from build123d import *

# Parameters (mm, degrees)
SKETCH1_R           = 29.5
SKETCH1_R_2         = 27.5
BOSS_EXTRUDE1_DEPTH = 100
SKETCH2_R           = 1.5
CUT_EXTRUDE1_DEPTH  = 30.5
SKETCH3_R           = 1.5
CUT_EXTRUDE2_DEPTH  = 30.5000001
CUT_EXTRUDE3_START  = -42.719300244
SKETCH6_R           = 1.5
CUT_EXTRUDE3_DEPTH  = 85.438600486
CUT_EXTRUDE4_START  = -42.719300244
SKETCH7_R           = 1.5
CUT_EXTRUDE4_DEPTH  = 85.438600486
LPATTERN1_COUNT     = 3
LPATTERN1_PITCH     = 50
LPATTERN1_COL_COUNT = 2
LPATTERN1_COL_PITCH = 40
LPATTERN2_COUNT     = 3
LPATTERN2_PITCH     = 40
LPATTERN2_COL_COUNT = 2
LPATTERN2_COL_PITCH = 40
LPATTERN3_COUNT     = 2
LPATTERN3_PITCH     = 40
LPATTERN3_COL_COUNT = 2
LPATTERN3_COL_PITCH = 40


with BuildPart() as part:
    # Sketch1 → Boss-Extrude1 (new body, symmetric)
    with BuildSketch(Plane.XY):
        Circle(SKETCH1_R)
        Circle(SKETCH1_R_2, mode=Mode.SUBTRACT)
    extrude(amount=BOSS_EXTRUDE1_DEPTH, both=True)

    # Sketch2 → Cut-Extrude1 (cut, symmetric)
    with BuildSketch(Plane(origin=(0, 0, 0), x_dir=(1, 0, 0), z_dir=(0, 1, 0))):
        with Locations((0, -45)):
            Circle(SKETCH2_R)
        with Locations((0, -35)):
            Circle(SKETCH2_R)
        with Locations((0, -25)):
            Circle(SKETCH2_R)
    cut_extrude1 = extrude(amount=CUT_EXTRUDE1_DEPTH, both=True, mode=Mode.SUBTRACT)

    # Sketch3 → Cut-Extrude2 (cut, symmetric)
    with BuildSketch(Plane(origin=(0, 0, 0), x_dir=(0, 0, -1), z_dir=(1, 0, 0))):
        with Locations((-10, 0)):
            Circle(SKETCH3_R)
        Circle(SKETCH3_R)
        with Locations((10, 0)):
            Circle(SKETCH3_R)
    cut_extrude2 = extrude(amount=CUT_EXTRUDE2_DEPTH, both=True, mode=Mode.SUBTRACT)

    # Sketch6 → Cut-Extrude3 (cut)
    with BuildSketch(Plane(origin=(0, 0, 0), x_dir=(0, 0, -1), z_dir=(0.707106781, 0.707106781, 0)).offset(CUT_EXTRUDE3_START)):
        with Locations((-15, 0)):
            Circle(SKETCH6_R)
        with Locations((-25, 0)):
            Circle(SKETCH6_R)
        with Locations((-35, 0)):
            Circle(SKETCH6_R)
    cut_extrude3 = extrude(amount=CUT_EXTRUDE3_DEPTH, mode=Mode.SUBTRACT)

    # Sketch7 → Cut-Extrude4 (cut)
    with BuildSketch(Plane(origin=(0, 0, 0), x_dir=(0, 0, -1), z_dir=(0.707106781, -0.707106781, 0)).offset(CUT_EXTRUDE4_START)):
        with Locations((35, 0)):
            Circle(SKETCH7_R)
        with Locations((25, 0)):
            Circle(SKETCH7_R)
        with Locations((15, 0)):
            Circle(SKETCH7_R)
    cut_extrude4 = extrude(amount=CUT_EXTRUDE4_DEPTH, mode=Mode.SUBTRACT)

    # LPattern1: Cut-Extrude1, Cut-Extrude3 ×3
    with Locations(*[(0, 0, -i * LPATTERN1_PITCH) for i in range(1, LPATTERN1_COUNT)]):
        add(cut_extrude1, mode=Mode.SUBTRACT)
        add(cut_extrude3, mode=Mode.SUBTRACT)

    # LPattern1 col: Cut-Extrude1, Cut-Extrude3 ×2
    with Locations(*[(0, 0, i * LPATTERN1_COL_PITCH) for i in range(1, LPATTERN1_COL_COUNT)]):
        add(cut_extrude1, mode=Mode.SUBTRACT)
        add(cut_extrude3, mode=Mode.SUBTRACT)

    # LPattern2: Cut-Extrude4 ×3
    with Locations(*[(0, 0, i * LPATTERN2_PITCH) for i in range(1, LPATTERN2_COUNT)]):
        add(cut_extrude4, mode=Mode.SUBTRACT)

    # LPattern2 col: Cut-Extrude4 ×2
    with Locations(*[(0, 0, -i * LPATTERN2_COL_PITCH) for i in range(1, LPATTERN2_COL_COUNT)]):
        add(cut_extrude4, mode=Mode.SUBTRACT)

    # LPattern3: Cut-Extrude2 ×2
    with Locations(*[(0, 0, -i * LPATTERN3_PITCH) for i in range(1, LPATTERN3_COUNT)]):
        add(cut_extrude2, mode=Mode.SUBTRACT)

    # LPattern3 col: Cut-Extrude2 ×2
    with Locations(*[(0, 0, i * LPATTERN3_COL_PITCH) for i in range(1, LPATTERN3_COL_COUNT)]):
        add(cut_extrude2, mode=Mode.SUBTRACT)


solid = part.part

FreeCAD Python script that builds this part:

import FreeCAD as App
import Part
import Sketcher

V = App.Vector
Q = App.Units.Quantity

doc = App.newDocument("Part")
body = doc.addObject("PartDesign::Body", "Body")

# Sketch on XY plane
sketch1 = body.newObject("Sketcher::SketchObject", "Sketch")
sketch1.AttachmentSupport = (doc.getObject("XY_Plane"), [""])
sketch1.MapMode = "FlatFace"
sketch1.addGeometry([
    Part.Circle(V(0, 0, 0), V(0, 0, 1), 30),
    Part.Circle(V(0, 0, 0), V(0, 0, 1), 28),
], False)
sketch1.addConstraint([
    Sketcher.Constraint("Coincident", 0, 3, -1, 1),
    Sketcher.Constraint("Coincident", 1, 3, -1, 1),
    Sketcher.Constraint("Diameter", 0, Q("59 mm")),
    Sketcher.Constraint("Diameter", 1, Q("55 mm")),
])
pad1 = body.newObject("PartDesign::Pad", "Pad")
pad1.Profile = sketch1
pad1.Length = 200
pad1.Midplane = True

# Sketch on XZ plane
sketch2 = body.newObject("Sketcher::SketchObject", "Sketch001")
sketch2.AttachmentSupport = (doc.getObject("XZ_Plane"), [""])
sketch2.MapMode = "FlatFace"
sketch2.addGeometry([
    Part.Circle(V(0, 45, 0), V(0, 0, 1), 1.5),
    Part.Circle(V(0, 35, 0), V(0, 0, 1), 1.5),
    Part.Circle(V(0, 25, 0), V(0, 0, 1), 1.5),
], False)
sketch2.addConstraint([
    Sketcher.Constraint("Equal", 0, 1),
    Sketcher.Constraint("Equal", 1, 2),
    Sketcher.Constraint("PointOnObject", 0, 3, -2),
    Sketcher.Constraint("PointOnObject", 1, 3, -2),
    Sketcher.Constraint("PointOnObject", 2, 3, -2),
    Sketcher.Constraint("Diameter", 0, Q("3 mm")),
    Sketcher.Constraint("DistanceY", -1, 1, 0, 3, Q("45 mm")),
    Sketcher.Constraint("DistanceY", -1, 1, 1, 3, Q("35 mm")),
    Sketcher.Constraint("DistanceY", -1, 1, 2, 3, Q("25 mm")),
])
pocket1 = body.newObject("PartDesign::Pocket", "Pocket")
pocket1.Profile = sketch2
pocket1.Length = 61
pocket1.Midplane = True

# Sketch on YZ plane
sketch3 = body.newObject("Sketcher::SketchObject", "Sketch002")
sketch3.AttachmentSupport = (doc.getObject("YZ_Plane"), [""])
sketch3.MapMode = "FlatFace"
sketch3.addGeometry([
    Part.Circle(V(0, 10, 0), V(0, 0, 1), 1.5),
    Part.Circle(V(0, 0, 0), V(0, 0, 1), 1.5),
    Part.Circle(V(0, -10, 0), V(0, 0, 1), 1.5),
], False)
sketch3.addConstraint([
    Sketcher.Constraint("Coincident", 1, 3, -1, 1),
    Sketcher.Constraint("Equal", 0, 1),
    Sketcher.Constraint("Equal", 1, 2),
    Sketcher.Constraint("Symmetric", 0, 3, 2, 3, -1, 1),
    Sketcher.Constraint("PointOnObject", 0, 3, -2),
    Sketcher.Constraint("Diameter", 0, Q("3 mm")),
    Sketcher.Constraint("DistanceY", -1, 1, 0, 3, Q("10 mm")),
])
pocket2 = body.newObject("PartDesign::Pocket", "Pocket001")
pocket2.Profile = sketch3
pocket2.Length = 61
pocket2.Midplane = True

# Sketch on an angled plane
sketch4 = body.newObject("Sketcher::SketchObject", "Sketch003")
sketch4.Placement = App.Placement(V(-30.207107, -30.207107, 0), App.Rotation(V(0, 0, -1), V(-0.707106781, 0.707106781, 0), V(0.707106781, 0.707106781, 0), "ZXY"))
sketch4.addGeometry([
    Part.Circle(V(-15, 0, 0), V(0, 0, 1), 1.5),
    Part.Circle(V(-25, 0, 0), V(0, 0, 1), 1.5),
    Part.Circle(V(-35, 0, 0), V(0, 0, 1), 1.5),
], False)
sketch4.addConstraint([
    Sketcher.Constraint("Equal", 0, 1),
    Sketcher.Constraint("Equal", 1, 2),
    Sketcher.Constraint("PointOnObject", 0, 3, -1),
    Sketcher.Constraint("PointOnObject", 1, 3, -1),
    Sketcher.Constraint("PointOnObject", 2, 3, -1),
    Sketcher.Constraint("Diameter", 0, Q("3 mm")),
    Sketcher.Constraint("DistanceX", 0, 3, -1, 1, Q("15 mm")),
    Sketcher.Constraint("DistanceX", 1, 3, -1, 1, Q("25 mm")),
    Sketcher.Constraint("DistanceX", 2, 3, -1, 1, Q("35 mm")),
])
pocket3 = body.newObject("PartDesign::Pocket", "Pocket002")
pocket3.Profile = sketch4
pocket3.Length = 85.4386
pocket3.Reversed = True

# Sketch on an angled plane
sketch5 = body.newObject("Sketcher::SketchObject", "Sketch004")
sketch5.Placement = App.Placement(V(-30.207107, 30.207107, 0), App.Rotation(V(0, 0, -1), V(0.707106781, 0.707106781, 0), V(0.707106781, -0.707106781, 0), "ZXY"))
sketch5.addGeometry([
    Part.Circle(V(35, 0, 0), V(0, 0, 1), 1.5),
    Part.Circle(V(25, 0, 0), V(0, 0, 1), 1.5),
    Part.Circle(V(15, 0, 0), V(0, 0, 1), 1.5),
], False)
sketch5.addConstraint([
    Sketcher.Constraint("Equal", 0, 1),
    Sketcher.Constraint("Equal", 1, 2),
    Sketcher.Constraint("PointOnObject", 0, 3, -1),
    Sketcher.Constraint("PointOnObject", 1, 3, -1),
    Sketcher.Constraint("PointOnObject", 2, 3, -1),
    Sketcher.Constraint("Diameter", 0, Q("3 mm")),
    Sketcher.Constraint("DistanceX", -1, 1, 0, 3, Q("35 mm")),
    Sketcher.Constraint("DistanceX", -1, 1, 1, 3, Q("25 mm")),
    Sketcher.Constraint("DistanceX", -1, 1, 2, 3, Q("15 mm")),
])
pocket4 = body.newObject("PartDesign::Pocket", "Pocket003")
pocket4.Profile = sketch5
pocket4.Length = 85.4386
pocket4.Reversed = True
doc.recompute()

linearpattern = body.newObject("PartDesign::LinearPattern", "LinearPattern")
linearpattern.Originals = [pocket1, pocket3]
linearpattern.Direction = (doc.getObject("Z_Axis"), [""])
linearpattern.Mode = "offset"
linearpattern.Offset = 50
linearpattern.Occurrences = 3
linearpattern.Reversed = True
body.Tip = linearpattern
doc.recompute()

linearpattern2 = body.newObject("PartDesign::LinearPattern", "LinearPattern001")
linearpattern2.Originals = [pocket1, pocket3]
linearpattern2.Direction = (doc.getObject("Z_Axis"), [""])
linearpattern2.Mode = "offset"
linearpattern2.Offset = 40
linearpattern2.Occurrences = 2
body.Tip = linearpattern2
doc.recompute()

linearpattern3 = body.newObject("PartDesign::LinearPattern", "LinearPattern002")
linearpattern3.Originals = [pocket4]
linearpattern3.Direction = (doc.getObject("Z_Axis"), [""])
linearpattern3.Mode = "offset"
linearpattern3.Offset = 40
linearpattern3.Occurrences = 3
body.Tip = linearpattern3
doc.recompute()

linearpattern4 = body.newObject("PartDesign::LinearPattern", "LinearPattern003")
linearpattern4.Originals = [pocket4]
linearpattern4.Direction = (doc.getObject("Z_Axis"), [""])
linearpattern4.Mode = "offset"
linearpattern4.Offset = 40
linearpattern4.Occurrences = 2
linearpattern4.Reversed = True
body.Tip = linearpattern4
doc.recompute()

linearpattern5 = body.newObject("PartDesign::LinearPattern", "LinearPattern004")
linearpattern5.Originals = [pocket2]
linearpattern5.Direction = (doc.getObject("Z_Axis"), [""])
linearpattern5.Mode = "offset"
linearpattern5.Offset = 40
linearpattern5.Occurrences = 2
linearpattern5.Reversed = True
body.Tip = linearpattern5
doc.recompute()

linearpattern6 = body.newObject("PartDesign::LinearPattern", "LinearPattern005")
linearpattern6.Originals = [pocket2]
linearpattern6.Direction = (doc.getObject("Z_Axis"), [""])
linearpattern6.Mode = "offset"
linearpattern6.Offset = 40
linearpattern6.Occurrences = 2
body.Tip = linearpattern6

doc.recompute()
